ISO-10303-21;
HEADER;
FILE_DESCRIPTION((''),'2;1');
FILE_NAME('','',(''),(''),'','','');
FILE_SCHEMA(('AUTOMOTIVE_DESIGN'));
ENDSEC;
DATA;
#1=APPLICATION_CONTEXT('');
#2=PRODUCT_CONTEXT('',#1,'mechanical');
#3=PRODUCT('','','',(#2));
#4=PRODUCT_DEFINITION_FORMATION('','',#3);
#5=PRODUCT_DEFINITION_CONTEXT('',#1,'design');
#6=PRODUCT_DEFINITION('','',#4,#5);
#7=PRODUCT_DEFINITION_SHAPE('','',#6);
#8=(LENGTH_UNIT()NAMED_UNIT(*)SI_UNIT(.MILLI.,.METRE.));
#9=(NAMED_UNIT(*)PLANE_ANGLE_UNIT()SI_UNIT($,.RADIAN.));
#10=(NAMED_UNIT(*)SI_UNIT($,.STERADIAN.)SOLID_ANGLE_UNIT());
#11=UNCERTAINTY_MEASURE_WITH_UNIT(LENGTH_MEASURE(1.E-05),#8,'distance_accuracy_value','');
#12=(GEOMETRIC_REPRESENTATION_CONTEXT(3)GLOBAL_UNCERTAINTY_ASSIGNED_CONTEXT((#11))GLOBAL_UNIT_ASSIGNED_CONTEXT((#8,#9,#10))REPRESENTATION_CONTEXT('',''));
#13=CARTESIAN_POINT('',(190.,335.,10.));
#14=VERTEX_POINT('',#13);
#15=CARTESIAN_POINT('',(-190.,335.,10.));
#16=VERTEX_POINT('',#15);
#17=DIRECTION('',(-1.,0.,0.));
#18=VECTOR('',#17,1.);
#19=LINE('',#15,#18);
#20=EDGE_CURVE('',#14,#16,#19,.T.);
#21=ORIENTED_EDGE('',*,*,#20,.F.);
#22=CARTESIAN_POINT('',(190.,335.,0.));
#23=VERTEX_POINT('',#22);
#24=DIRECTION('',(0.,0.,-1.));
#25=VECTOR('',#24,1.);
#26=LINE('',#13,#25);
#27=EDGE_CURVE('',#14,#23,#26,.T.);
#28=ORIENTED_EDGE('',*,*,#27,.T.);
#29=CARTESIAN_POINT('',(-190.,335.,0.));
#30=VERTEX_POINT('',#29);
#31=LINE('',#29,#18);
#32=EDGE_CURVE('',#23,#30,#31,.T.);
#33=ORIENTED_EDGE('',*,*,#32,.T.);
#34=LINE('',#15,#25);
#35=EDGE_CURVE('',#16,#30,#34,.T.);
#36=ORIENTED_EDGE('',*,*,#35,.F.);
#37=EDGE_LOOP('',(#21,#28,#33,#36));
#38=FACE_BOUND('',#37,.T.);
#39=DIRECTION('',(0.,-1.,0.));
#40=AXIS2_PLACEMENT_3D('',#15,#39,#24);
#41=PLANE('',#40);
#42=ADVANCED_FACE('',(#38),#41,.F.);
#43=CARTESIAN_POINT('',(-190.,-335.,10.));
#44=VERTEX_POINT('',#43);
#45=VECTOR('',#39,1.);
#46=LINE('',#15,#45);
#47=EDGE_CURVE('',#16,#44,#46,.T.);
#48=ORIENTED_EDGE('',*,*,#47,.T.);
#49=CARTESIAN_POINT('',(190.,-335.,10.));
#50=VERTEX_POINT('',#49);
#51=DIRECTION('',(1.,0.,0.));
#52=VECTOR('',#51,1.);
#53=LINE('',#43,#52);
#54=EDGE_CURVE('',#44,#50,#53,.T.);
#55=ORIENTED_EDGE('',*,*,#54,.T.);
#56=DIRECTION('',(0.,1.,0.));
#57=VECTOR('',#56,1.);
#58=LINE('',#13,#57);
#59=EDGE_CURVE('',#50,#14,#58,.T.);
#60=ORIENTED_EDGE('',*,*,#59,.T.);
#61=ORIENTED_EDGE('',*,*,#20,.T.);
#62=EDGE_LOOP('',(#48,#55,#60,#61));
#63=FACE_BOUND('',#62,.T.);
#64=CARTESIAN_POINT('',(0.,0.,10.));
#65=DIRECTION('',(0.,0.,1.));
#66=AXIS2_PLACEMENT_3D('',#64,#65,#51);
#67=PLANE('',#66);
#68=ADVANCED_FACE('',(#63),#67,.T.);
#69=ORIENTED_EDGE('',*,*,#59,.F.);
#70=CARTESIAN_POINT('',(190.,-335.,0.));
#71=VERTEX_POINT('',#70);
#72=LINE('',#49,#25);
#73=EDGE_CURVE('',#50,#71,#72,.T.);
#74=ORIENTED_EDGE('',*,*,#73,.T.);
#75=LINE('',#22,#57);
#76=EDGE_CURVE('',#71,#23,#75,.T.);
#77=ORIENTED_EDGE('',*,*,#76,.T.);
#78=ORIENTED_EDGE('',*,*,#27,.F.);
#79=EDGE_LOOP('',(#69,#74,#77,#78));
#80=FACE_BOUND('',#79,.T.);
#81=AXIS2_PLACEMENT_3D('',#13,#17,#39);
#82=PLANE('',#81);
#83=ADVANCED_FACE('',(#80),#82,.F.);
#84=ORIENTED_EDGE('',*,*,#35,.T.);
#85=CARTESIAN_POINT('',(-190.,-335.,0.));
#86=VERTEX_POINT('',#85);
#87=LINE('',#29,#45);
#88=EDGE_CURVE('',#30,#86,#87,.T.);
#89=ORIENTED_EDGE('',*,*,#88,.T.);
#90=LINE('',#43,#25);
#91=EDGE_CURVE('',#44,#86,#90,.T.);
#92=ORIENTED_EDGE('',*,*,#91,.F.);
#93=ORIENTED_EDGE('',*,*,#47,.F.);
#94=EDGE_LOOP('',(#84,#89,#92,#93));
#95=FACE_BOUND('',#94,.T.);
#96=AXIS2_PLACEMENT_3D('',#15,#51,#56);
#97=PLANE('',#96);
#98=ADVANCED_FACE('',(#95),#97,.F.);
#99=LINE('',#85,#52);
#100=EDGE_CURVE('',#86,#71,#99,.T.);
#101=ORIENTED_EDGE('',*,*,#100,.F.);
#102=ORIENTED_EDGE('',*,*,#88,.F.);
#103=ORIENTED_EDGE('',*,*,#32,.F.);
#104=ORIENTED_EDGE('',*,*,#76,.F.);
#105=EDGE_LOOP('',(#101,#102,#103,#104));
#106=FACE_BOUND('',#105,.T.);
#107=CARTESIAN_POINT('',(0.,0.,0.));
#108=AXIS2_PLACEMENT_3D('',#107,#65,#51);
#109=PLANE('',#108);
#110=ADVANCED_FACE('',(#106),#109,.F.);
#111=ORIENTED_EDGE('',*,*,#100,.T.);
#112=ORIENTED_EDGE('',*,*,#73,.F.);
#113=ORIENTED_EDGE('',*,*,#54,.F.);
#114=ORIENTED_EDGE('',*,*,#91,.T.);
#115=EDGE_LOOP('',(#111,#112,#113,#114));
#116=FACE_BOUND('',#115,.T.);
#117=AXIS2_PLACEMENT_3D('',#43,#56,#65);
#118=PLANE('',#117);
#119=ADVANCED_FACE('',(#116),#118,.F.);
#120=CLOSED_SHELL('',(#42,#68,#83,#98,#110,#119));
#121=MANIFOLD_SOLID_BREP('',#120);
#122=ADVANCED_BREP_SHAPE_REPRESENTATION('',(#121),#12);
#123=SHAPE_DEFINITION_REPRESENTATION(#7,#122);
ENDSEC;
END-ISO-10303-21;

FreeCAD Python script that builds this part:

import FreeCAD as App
import Part
import Sketcher
from FreeCAD import Vector


def add_polygon(sketch, points):
    """Adds a closed chain of lines whose ends are joined by coincident constraints."""
    first, n = sketch.GeometryCount, len(points)
    for a, b in zip(points, points[1:] + points[:1]):
        sketch.addGeometry(Part.LineSegment(App.Vector(*a, 0), App.Vector(*b, 0)), False)
    for i in range(n):
        sketch.addConstraint(Sketcher.Constraint("Coincident", first + i, 2, first + (i + 1) % n, 1))

doc = App.newDocument("Part")
params = doc.addObject("Spreadsheet::Sheet", "Params")
for row, (alias, value) in enumerate([
    ("sketch1_width", "380 mm"),
    ("sketch1_height", "670 mm"),
    ("pad1_length", "10 mm"),
], start=1):
    params.set(f"A{row}", alias)
    params.set(f"B{row}", "=" + value)
    params.setAlias(f"B{row}", alias)

body = doc.addObject("PartDesign::Body", "Body")

# Sketch on XY plane
sketch1 = body.newObject("Sketcher::SketchObject", "Sketch")
sketch1.AttachmentSupport = (doc.getObject("XY_Plane"), [""])
sketch1.MapMode = "FlatFace"
add_polygon(sketch1, [(-190, 335), (-190, -335), (190, -335), (190, 335)])  # lines 0-3
sketch1.addConstraint([
    Sketcher.Constraint("Vertical", 0),
    Sketcher.Constraint("Horizontal", 1),
    Sketcher.Constraint("Vertical", 2),
    Sketcher.Constraint("Horizontal", 3),
    Sketcher.Constraint("Symmetric", 0, 2, 2, 2, -1, 1),
    Sketcher.Constraint("DistanceX", 1, 1, 1, 2, 380.0),
    Sketcher.Constraint("DistanceY", 0, 2, 0, 1, 670.0),
])
sketch1.setExpression("Constraints[9]", "Params.sketch1_width")
sketch1.setExpression("Constraints[10]", "Params.sketch1_height")
pad1 = body.newObject("PartDesign::Pad", "Pad")
pad1.Profile = sketch1
pad1.setExpression("Length", "Params.pad1_length")

doc.recompute()
